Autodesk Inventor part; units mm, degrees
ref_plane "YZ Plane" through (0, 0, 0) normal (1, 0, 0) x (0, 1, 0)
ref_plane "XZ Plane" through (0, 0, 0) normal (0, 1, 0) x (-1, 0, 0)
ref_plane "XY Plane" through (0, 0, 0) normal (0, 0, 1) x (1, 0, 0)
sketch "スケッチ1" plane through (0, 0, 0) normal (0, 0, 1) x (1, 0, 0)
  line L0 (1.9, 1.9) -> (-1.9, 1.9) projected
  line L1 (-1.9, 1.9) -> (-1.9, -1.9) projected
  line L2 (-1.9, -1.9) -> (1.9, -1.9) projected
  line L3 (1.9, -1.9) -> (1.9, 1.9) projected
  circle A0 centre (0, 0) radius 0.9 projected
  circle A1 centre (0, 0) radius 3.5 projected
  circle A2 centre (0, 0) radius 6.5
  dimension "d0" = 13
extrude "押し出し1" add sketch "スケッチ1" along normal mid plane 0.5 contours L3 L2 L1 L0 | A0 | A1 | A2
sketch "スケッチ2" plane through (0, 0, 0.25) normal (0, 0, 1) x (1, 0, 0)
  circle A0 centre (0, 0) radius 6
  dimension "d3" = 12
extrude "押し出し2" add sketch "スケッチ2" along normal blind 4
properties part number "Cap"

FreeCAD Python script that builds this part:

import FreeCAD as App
import Part
import Sketcher

V = App.Vector
Q = App.Units.Quantity

doc = App.newDocument("Part")
body = doc.addObject("PartDesign::Body", "Body")

# Sketch on XY plane
sketch1 = doc.addObject("Sketcher::SketchObject", "Sketch")
body.addObject(sketch1)
sketch1.AttachmentSupport = (doc.XY_Plane, [""])
sketch1.MapMode = "FlatFace"
sketch1.addGeometry(Part.Circle(V(0, 0, 0), V(0, 0, 1), 6.5), False)
sketch1.addConstraint([
    Sketcher.Constraint("Coincident", 0, 3, -1, 1),
    Sketcher.Constraint("Diameter", 0, Q("13 mm")),
])
pad1 = doc.addObject("PartDesign::Pad", "Pad")
body.addObject(pad1)
pad1.Profile = sketch1
pad1.Length = 0.5
pad1.Midplane = True

# Sketch on XY plane
sketch2 = doc.addObject("Sketcher::SketchObject", "Sketch001")
body.addObject(sketch2)
sketch2.AttachmentSupport = (doc.XY_Plane, [""])
sketch2.MapMode = "FlatFace"
sketch2.AttachmentOffset = App.Placement(V(0, 0, 0.25), App.Rotation())
sketch2.addGeometry(Part.Circle(V(0, 0, 0), V(0, 0, 1), 6), False)
sketch2.addConstraint([
    Sketcher.Constraint("Coincident", 0, 3, -1, 1),
    Sketcher.Constraint("Diameter", 0, Q("12 mm")),
])
pad2 = doc.addObject("PartDesign::Pad", "Pad001")
body.addObject(pad2)
pad2.Profile = sketch2
pad2.Length = 4

doc.recompute()
